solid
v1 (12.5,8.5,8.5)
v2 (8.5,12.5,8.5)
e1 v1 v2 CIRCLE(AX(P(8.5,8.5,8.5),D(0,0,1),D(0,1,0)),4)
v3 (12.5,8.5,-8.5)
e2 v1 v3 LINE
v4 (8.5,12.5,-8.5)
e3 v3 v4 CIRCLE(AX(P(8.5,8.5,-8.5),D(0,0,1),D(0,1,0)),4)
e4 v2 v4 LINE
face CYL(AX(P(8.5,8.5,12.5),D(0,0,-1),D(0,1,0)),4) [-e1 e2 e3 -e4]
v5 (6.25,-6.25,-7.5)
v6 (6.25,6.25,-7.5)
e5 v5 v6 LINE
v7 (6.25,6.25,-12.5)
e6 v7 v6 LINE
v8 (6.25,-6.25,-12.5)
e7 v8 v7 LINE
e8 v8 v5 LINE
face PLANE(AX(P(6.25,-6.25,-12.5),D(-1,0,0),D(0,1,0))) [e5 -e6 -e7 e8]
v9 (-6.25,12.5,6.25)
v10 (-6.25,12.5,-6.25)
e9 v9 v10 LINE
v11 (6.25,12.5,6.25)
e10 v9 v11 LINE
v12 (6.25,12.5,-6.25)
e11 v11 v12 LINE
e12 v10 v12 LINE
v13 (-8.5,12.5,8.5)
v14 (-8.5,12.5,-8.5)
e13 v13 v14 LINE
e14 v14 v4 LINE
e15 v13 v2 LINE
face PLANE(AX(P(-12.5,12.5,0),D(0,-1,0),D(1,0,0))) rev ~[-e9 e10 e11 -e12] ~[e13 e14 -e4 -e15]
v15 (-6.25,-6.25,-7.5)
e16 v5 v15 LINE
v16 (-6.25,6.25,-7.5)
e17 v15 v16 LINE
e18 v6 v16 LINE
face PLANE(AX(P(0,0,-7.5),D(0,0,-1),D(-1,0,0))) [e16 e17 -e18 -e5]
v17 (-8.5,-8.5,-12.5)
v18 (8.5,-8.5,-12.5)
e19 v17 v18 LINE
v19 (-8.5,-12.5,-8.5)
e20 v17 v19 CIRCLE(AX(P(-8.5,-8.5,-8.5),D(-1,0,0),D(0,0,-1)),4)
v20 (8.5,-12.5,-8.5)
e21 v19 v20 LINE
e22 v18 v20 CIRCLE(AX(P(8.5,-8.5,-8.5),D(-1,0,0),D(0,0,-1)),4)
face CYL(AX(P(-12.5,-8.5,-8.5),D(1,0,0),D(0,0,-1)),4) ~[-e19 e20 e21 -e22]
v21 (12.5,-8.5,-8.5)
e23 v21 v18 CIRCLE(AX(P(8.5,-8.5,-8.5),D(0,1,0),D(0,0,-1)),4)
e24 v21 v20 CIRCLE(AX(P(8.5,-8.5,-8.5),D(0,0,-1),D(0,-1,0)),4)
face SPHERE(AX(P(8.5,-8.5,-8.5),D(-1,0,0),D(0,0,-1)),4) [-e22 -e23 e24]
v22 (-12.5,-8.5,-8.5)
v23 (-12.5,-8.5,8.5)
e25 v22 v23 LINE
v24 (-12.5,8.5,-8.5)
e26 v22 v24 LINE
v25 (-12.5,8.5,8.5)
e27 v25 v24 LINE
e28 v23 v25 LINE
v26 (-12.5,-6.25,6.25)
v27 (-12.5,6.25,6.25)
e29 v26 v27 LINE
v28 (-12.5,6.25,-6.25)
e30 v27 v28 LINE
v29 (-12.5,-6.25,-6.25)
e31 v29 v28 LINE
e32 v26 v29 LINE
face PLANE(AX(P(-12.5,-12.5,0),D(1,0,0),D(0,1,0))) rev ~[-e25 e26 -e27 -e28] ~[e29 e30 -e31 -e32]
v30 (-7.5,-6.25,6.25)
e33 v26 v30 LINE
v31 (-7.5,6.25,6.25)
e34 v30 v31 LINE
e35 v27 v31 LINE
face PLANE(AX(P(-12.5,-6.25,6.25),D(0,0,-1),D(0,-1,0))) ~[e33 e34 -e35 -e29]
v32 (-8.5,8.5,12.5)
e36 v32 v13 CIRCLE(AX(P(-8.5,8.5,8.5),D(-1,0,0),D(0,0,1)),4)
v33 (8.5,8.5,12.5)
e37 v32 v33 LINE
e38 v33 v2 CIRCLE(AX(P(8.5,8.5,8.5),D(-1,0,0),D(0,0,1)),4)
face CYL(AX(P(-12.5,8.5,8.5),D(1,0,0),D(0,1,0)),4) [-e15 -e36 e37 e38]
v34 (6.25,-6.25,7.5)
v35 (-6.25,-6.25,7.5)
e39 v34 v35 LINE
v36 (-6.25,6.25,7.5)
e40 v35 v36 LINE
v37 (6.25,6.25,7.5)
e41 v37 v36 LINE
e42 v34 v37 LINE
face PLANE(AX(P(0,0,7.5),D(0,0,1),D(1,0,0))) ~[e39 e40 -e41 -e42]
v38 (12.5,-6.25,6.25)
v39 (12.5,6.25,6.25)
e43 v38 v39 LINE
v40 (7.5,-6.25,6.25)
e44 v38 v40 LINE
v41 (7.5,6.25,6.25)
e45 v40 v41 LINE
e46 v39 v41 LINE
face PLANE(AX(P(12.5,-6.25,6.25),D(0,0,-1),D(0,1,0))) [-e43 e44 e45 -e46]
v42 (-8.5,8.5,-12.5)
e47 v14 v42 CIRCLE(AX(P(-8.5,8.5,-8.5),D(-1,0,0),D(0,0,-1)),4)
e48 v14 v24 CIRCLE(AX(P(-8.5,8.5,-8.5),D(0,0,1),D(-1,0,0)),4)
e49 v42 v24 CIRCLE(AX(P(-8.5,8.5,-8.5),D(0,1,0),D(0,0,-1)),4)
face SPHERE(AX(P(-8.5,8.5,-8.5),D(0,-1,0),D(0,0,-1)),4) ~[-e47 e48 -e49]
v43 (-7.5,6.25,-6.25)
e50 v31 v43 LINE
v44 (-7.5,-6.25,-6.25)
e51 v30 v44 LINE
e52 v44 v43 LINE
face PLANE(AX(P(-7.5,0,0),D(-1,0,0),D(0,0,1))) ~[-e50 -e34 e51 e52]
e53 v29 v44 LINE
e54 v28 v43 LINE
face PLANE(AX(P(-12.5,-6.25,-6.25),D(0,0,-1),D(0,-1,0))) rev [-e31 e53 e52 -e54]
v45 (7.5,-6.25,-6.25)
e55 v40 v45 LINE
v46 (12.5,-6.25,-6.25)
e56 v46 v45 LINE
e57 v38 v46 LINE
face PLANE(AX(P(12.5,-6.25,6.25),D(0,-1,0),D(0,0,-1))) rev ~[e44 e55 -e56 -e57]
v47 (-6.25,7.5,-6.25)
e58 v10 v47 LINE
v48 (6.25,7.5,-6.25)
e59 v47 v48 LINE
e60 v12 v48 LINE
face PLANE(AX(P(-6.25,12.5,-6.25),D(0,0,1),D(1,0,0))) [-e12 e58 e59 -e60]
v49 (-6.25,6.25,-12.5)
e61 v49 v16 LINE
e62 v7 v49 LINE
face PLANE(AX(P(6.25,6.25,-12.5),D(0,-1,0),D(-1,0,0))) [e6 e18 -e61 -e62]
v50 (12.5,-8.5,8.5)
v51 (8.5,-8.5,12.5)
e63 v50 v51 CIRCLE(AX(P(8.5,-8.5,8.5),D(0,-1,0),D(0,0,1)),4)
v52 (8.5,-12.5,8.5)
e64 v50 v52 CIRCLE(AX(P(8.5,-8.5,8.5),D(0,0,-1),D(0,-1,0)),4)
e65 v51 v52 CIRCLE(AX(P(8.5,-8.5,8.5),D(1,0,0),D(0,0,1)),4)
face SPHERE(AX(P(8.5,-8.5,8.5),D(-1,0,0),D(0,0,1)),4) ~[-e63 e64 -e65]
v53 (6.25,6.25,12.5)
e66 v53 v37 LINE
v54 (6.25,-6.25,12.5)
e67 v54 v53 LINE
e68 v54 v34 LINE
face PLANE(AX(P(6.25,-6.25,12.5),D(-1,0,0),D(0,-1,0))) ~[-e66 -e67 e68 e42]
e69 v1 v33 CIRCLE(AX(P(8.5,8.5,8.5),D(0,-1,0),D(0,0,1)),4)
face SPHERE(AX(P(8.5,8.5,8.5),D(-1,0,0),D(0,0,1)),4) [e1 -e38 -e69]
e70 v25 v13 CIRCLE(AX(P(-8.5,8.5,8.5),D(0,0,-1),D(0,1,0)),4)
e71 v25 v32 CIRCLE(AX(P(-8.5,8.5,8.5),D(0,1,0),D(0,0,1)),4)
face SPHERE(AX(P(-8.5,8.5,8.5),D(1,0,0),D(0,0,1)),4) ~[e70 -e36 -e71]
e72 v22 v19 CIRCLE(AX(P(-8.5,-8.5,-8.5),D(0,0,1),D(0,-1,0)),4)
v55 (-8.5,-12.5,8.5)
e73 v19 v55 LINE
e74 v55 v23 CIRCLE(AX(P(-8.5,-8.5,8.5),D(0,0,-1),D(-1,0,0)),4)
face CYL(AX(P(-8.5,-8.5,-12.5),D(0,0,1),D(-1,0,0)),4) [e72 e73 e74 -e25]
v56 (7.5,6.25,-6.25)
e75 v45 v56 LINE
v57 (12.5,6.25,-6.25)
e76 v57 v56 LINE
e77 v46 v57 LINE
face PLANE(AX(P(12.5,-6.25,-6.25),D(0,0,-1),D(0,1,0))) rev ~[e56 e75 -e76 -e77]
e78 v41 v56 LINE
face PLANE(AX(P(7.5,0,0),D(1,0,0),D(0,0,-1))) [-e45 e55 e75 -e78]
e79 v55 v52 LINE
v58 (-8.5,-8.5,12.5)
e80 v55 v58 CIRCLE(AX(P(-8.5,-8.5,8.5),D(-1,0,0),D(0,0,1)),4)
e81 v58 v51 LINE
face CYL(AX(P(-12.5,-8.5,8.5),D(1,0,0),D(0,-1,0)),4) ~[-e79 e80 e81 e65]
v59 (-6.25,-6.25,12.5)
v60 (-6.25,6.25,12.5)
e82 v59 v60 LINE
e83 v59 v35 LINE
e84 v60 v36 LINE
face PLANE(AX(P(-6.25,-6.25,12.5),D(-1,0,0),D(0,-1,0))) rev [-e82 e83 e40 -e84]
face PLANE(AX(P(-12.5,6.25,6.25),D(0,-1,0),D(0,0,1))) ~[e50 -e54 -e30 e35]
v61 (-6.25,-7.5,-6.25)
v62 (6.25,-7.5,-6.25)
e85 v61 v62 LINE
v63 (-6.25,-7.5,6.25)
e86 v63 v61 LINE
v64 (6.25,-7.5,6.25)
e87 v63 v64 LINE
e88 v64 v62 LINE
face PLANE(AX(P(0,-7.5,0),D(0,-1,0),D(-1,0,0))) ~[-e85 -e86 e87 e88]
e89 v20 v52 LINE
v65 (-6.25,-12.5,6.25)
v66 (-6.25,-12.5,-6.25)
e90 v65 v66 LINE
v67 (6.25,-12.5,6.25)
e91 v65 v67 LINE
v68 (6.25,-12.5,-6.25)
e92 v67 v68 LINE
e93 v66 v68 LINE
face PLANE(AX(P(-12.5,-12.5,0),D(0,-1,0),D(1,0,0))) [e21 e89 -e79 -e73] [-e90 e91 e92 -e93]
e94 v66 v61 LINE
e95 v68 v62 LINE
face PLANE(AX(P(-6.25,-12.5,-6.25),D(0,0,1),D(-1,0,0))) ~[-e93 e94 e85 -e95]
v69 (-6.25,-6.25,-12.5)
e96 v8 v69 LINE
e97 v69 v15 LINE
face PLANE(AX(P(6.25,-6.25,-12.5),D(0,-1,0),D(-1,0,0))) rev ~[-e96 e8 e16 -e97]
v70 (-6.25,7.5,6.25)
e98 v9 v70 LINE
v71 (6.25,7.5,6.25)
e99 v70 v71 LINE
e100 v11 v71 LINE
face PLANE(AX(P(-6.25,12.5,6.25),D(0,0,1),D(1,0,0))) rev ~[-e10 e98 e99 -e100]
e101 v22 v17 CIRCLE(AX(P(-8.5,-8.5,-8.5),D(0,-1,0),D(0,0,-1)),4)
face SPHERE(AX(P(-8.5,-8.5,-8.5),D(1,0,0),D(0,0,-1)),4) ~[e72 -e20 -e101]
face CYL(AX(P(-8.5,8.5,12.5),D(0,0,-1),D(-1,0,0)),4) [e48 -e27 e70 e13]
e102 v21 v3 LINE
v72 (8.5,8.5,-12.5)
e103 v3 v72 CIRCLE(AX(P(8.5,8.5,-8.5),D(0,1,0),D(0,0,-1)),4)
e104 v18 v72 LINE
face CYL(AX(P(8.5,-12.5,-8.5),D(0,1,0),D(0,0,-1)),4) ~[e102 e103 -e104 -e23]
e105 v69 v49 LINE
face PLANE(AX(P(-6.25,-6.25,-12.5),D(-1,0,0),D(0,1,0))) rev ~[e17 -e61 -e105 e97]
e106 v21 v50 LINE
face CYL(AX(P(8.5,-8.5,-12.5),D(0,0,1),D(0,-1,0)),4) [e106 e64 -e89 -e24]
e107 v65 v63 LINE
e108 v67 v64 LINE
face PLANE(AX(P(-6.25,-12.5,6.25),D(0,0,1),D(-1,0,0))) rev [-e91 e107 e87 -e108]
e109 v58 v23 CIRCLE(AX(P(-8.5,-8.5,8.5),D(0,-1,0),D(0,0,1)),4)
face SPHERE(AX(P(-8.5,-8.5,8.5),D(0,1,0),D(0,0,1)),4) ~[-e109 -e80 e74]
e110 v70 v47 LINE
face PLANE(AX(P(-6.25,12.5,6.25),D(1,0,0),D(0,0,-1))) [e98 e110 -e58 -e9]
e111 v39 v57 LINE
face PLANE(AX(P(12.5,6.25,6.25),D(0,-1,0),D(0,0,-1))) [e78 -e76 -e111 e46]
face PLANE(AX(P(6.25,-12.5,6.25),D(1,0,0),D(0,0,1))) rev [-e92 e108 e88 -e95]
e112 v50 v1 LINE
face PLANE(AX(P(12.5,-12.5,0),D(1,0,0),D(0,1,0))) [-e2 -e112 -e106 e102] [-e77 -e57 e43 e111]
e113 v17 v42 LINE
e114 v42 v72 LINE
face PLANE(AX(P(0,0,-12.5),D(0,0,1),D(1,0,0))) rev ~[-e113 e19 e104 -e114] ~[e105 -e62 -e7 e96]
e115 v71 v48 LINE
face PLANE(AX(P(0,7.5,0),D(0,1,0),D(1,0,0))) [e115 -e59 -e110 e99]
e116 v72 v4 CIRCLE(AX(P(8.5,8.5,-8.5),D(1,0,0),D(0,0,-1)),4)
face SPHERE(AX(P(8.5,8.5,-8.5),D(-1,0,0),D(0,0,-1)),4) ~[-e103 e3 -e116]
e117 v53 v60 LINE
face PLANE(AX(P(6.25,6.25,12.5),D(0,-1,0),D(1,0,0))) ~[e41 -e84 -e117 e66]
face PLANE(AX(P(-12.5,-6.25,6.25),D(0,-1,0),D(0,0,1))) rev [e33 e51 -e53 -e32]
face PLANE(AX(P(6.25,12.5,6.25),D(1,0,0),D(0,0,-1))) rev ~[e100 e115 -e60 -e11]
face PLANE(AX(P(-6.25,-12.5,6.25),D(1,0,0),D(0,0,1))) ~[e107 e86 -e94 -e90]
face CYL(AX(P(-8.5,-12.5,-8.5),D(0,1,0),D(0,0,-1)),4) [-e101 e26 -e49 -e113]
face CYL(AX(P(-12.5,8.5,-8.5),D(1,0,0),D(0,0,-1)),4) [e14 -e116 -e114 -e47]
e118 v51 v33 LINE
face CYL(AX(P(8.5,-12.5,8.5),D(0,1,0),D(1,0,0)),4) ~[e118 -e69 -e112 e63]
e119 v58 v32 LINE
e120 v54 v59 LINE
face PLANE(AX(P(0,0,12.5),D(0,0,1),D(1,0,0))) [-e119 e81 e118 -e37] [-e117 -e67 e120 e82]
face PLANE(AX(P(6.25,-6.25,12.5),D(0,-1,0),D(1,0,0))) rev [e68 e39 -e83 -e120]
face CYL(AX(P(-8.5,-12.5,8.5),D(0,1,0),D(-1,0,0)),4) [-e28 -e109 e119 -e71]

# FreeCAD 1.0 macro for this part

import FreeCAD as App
import Part
import Sketcher
from FreeCAD import Vector
Q = App.Units.Quantity


def edges_at(feature, points):
    """Names of the edges that pass closest to the given points."""
    edges = feature.Shape.Edges
    near = lambda p: min(range(len(edges)), key=lambda i: edges[i].distToShape(Part.Vertex(*p))[0])
    return sorted({f"Edge{near(p) + 1}" for p in points})

doc = App.newDocument("Part")
body = doc.addObject("PartDesign::Body", "Body")

# Sketch on XY plane
sketch1 = doc.addObject("Sketcher::SketchObject", "Sketch")
body.addObject(sketch1)
sketch1.AttachmentSupport = (doc.XY_Plane, [""])
sketch1.MapMode = "FlatFace"
sketch1.addGeometry([
    Part.LineSegment(Vector(-12, 12, 0), Vector(-12, -12, 0)),
    Part.LineSegment(Vector(-12, -12, 0), Vector(12, -12, 0)),
    Part.LineSegment(Vector(12, -12, 0), Vector(12, 12, 0)),
    Part.LineSegment(Vector(12, 12, 0), Vector(-12, 12, 0)),
], False)
sketch1.addConstraint([
    Sketcher.Constraint("Coincident", 0, 2, 1, 1),
    Sketcher.Constraint("Coincident", 1, 2, 2, 1),
    Sketcher.Constraint("Coincident", 2, 2, 3, 1),
    Sketcher.Constraint("Coincident", 3, 2, 0, 1),
    Sketcher.Constraint("Vertical", 0),
    Sketcher.Constraint("Horizontal", 1),
    Sketcher.Constraint("Vertical", 2),
    Sketcher.Constraint("Horizontal", 3),
    Sketcher.Constraint("Symmetric", 0, 2, 2, 2, -1, 1),
    Sketcher.Constraint("Equal", 3, 0),
    Sketcher.Constraint("DistanceX", 1, 1, 1, 2, Q("25 mm")),
])
pad1 = doc.addObject("PartDesign::Pad", "Pad")
body.addObject(pad1)
pad1.Profile = sketch1
pad1.Length = 25
pad1.Midplane = True

# Sketch on XY plane
sketch2 = doc.addObject("Sketcher::SketchObject", "Sketch001")
body.addObject(sketch2)
sketch2.AttachmentSupport = (doc.XY_Plane, [""])
sketch2.MapMode = "FlatFace"
sketch2.AttachmentOffset = App.Placement(Vector(0, 0, -12.5), App.Rotation())
sketch2.addGeometry([
    Part.LineSegment(Vector(6, 6, 0), Vector(6, -6, 0)),
    Part.LineSegment(Vector(6, -6, 0), Vector(-6, -6, 0)),
    Part.LineSegment(Vector(-6, -6, 0), Vector(-6, 6, 0)),
    Part.LineSegment(Vector(-6, 6, 0), Vector(6, 6, 0)),
], False)
sketch2.addConstraint([
    Sketcher.Constraint("Coincident", 0, 2, 1, 1),
    Sketcher.Constraint("Coincident", 1, 2, 2, 1),
    Sketcher.Constraint("Coincident", 2, 2, 3, 1),
    Sketcher.Constraint("Coincident", 3, 2, 0, 1),
    Sketcher.Constraint("Vertical", 0),
    Sketcher.Constraint("Horizontal", 1),
    Sketcher.Constraint("Vertical", 2),
    Sketcher.Constraint("Horizontal", 3),
    Sketcher.Constraint("Symmetric", 0, 2, 2, 2, -1, 1),
    Sketcher.Constraint("Equal", 3, 0),
    Sketcher.Constraint("DistanceX", 1, 2, 1, 1, Q("12.5 mm")),
])
pocket1 = doc.addObject("PartDesign::Pocket", "Pocket")
body.addObject(pocket1)
pocket1.Profile = sketch2
pocket1.Length = 5
pocket1.Reversed = True
doc.recompute()

mirrored = doc.addObject("PartDesign::Mirrored", "Mirrored")
body.addObject(mirrored)
mirrored.Originals = [pocket1]
mirrored.MirrorPlane = (doc.XY_Plane, [""])
body.Tip = mirrored

# Sketch on XZ plane
sketch3 = doc.addObject("Sketcher::SketchObject", "Sketch002")
body.addObject(sketch3)
sketch3.AttachmentSupport = (doc.XZ_Plane, [""])
sketch3.MapMode = "FlatFace"
sketch3.AttachmentOffset = App.Placement(Vector(0, 0, -12.5), App.Rotation())
sketch3.addGeometry([
    Part.LineSegment(Vector(-6, -6, 0), Vector(-6, 6, 0)),
    Part.LineSegment(Vector(-6, 6, 0), Vector(6, 6, 0)),
    Part.LineSegment(Vector(6, 6, 0), Vector(6, -6, 0)),
    Part.LineSegment(Vector(6, -6, 0), Vector(-6, -6, 0)),
], False)
sketch3.addConstraint([
    Sketcher.Constraint("Coincident", 0, 2, 1, 1),
    Sketcher.Constraint("Coincident", 1, 2, 2, 1),
    Sketcher.Constraint("Coincident", 2, 2, 3, 1),
    Sketcher.Constraint("Coincident", 3, 2, 0, 1),
    Sketcher.Constraint("Vertical", 0),
    Sketcher.Constraint("Horizontal", 1),
    Sketcher.Constraint("Vertical", 2),
    Sketcher.Constraint("Horizontal", 3),
    Sketcher.Constraint("Symmetric", 0, 2, 2, 2, -1, 1),
    Sketcher.Constraint("Equal", 3, 0),
    Sketcher.Constraint("DistanceX", 1, 1, 1, 2, Q("12.5 mm")),
])
pocket2 = doc.addObject("PartDesign::Pocket", "Pocket001")
body.addObject(pocket2)
pocket2.Profile = sketch3
pocket2.Length = 5
pocket2.Reversed = True

# Sketch on YZ plane
sketch4 = doc.addObject("Sketcher::SketchObject", "Sketch003")
body.addObject(sketch4)
sketch4.AttachmentSupport = (doc.YZ_Plane, [""])
sketch4.MapMode = "FlatFace"
sketch4.AttachmentOffset = App.Placement(Vector(0, 0, 12.5), App.Rotation())
sketch4.addGeometry([
    Part.LineSegment(Vector(6, 6, 0), Vector(-6, 6, 0)),
    Part.LineSegment(Vector(-6, 6, 0), Vector(-6, -6, 0)),
    Part.LineSegment(Vector(-6, -6, 0), Vector(6, -6, 0)),
    Part.LineSegment(Vector(6, -6, 0), Vector(6, 6, 0)),
], False)
sketch4.addConstraint([
    Sketcher.Constraint("Coincident", 0, 2, 1, 1),
    Sketcher.Constraint("Coincident", 1, 2, 2, 1),
    Sketcher.Constraint("Coincident", 2, 2, 3, 1),
    Sketcher.Constraint("Coincident", 3, 2, 0, 1),
    Sketcher.Constraint("Horizontal", 0),
    Sketcher.Constraint("Vertical", 1),
    Sketcher.Constraint("Horizontal", 2),
    Sketcher.Constraint("Vertical", 3),
    Sketcher.Constraint("Symmetric", 0, 2, 2, 2, -1, 1),
    Sketcher.Constraint("Equal", 2, 1),
    Sketcher.Constraint("DistanceX", 0, 2, 0, 1, Q("12.5 mm")),
])
pocket3 = doc.addObject("PartDesign::Pocket", "Pocket002")
body.addObject(pocket3)
pocket3.Profile = sketch4
pocket3.Length = 5
doc.recompute()

mirrored2 = doc.addObject("PartDesign::Mirrored", "Mirrored001")
body.addObject(mirrored2)
mirrored2.Originals = [pocket3]
mirrored2.MirrorPlane = (doc.YZ_Plane, [""])
body.Tip = mirrored2
doc.recompute()

mirrored3 = doc.addObject("PartDesign::Mirrored", "Mirrored002")
body.addObject(mirrored3)
mirrored3.Originals = [pocket2]
mirrored3.MirrorPlane = (doc.XZ_Plane, [""])
body.Tip = mirrored3
doc.recompute()

fillet = doc.addObject("PartDesign::Fillet", "Fillet")
body.addObject(fillet)
fillet.Base = (mirrored3, edges_at(mirrored3, [
    (0, 12.5, 12.5),
    (-12.5, 0, 12.5),
    (0, -12.5, 12.5),
    (12.5, 0, 12.5),
    (0, -12.5, -12.5),
    (-12.5, 0, -12.5),
    (0, 12.5, -12.5),
    (12.5, 0, -12.5),
    (12.5, -12.5, 0),
    (-12.5, -12.5, 0),
    (-12.5, 12.5, 0),
    (12.5, 12.5, 0),
]))
fillet.Radius = 4

doc.recompute()
